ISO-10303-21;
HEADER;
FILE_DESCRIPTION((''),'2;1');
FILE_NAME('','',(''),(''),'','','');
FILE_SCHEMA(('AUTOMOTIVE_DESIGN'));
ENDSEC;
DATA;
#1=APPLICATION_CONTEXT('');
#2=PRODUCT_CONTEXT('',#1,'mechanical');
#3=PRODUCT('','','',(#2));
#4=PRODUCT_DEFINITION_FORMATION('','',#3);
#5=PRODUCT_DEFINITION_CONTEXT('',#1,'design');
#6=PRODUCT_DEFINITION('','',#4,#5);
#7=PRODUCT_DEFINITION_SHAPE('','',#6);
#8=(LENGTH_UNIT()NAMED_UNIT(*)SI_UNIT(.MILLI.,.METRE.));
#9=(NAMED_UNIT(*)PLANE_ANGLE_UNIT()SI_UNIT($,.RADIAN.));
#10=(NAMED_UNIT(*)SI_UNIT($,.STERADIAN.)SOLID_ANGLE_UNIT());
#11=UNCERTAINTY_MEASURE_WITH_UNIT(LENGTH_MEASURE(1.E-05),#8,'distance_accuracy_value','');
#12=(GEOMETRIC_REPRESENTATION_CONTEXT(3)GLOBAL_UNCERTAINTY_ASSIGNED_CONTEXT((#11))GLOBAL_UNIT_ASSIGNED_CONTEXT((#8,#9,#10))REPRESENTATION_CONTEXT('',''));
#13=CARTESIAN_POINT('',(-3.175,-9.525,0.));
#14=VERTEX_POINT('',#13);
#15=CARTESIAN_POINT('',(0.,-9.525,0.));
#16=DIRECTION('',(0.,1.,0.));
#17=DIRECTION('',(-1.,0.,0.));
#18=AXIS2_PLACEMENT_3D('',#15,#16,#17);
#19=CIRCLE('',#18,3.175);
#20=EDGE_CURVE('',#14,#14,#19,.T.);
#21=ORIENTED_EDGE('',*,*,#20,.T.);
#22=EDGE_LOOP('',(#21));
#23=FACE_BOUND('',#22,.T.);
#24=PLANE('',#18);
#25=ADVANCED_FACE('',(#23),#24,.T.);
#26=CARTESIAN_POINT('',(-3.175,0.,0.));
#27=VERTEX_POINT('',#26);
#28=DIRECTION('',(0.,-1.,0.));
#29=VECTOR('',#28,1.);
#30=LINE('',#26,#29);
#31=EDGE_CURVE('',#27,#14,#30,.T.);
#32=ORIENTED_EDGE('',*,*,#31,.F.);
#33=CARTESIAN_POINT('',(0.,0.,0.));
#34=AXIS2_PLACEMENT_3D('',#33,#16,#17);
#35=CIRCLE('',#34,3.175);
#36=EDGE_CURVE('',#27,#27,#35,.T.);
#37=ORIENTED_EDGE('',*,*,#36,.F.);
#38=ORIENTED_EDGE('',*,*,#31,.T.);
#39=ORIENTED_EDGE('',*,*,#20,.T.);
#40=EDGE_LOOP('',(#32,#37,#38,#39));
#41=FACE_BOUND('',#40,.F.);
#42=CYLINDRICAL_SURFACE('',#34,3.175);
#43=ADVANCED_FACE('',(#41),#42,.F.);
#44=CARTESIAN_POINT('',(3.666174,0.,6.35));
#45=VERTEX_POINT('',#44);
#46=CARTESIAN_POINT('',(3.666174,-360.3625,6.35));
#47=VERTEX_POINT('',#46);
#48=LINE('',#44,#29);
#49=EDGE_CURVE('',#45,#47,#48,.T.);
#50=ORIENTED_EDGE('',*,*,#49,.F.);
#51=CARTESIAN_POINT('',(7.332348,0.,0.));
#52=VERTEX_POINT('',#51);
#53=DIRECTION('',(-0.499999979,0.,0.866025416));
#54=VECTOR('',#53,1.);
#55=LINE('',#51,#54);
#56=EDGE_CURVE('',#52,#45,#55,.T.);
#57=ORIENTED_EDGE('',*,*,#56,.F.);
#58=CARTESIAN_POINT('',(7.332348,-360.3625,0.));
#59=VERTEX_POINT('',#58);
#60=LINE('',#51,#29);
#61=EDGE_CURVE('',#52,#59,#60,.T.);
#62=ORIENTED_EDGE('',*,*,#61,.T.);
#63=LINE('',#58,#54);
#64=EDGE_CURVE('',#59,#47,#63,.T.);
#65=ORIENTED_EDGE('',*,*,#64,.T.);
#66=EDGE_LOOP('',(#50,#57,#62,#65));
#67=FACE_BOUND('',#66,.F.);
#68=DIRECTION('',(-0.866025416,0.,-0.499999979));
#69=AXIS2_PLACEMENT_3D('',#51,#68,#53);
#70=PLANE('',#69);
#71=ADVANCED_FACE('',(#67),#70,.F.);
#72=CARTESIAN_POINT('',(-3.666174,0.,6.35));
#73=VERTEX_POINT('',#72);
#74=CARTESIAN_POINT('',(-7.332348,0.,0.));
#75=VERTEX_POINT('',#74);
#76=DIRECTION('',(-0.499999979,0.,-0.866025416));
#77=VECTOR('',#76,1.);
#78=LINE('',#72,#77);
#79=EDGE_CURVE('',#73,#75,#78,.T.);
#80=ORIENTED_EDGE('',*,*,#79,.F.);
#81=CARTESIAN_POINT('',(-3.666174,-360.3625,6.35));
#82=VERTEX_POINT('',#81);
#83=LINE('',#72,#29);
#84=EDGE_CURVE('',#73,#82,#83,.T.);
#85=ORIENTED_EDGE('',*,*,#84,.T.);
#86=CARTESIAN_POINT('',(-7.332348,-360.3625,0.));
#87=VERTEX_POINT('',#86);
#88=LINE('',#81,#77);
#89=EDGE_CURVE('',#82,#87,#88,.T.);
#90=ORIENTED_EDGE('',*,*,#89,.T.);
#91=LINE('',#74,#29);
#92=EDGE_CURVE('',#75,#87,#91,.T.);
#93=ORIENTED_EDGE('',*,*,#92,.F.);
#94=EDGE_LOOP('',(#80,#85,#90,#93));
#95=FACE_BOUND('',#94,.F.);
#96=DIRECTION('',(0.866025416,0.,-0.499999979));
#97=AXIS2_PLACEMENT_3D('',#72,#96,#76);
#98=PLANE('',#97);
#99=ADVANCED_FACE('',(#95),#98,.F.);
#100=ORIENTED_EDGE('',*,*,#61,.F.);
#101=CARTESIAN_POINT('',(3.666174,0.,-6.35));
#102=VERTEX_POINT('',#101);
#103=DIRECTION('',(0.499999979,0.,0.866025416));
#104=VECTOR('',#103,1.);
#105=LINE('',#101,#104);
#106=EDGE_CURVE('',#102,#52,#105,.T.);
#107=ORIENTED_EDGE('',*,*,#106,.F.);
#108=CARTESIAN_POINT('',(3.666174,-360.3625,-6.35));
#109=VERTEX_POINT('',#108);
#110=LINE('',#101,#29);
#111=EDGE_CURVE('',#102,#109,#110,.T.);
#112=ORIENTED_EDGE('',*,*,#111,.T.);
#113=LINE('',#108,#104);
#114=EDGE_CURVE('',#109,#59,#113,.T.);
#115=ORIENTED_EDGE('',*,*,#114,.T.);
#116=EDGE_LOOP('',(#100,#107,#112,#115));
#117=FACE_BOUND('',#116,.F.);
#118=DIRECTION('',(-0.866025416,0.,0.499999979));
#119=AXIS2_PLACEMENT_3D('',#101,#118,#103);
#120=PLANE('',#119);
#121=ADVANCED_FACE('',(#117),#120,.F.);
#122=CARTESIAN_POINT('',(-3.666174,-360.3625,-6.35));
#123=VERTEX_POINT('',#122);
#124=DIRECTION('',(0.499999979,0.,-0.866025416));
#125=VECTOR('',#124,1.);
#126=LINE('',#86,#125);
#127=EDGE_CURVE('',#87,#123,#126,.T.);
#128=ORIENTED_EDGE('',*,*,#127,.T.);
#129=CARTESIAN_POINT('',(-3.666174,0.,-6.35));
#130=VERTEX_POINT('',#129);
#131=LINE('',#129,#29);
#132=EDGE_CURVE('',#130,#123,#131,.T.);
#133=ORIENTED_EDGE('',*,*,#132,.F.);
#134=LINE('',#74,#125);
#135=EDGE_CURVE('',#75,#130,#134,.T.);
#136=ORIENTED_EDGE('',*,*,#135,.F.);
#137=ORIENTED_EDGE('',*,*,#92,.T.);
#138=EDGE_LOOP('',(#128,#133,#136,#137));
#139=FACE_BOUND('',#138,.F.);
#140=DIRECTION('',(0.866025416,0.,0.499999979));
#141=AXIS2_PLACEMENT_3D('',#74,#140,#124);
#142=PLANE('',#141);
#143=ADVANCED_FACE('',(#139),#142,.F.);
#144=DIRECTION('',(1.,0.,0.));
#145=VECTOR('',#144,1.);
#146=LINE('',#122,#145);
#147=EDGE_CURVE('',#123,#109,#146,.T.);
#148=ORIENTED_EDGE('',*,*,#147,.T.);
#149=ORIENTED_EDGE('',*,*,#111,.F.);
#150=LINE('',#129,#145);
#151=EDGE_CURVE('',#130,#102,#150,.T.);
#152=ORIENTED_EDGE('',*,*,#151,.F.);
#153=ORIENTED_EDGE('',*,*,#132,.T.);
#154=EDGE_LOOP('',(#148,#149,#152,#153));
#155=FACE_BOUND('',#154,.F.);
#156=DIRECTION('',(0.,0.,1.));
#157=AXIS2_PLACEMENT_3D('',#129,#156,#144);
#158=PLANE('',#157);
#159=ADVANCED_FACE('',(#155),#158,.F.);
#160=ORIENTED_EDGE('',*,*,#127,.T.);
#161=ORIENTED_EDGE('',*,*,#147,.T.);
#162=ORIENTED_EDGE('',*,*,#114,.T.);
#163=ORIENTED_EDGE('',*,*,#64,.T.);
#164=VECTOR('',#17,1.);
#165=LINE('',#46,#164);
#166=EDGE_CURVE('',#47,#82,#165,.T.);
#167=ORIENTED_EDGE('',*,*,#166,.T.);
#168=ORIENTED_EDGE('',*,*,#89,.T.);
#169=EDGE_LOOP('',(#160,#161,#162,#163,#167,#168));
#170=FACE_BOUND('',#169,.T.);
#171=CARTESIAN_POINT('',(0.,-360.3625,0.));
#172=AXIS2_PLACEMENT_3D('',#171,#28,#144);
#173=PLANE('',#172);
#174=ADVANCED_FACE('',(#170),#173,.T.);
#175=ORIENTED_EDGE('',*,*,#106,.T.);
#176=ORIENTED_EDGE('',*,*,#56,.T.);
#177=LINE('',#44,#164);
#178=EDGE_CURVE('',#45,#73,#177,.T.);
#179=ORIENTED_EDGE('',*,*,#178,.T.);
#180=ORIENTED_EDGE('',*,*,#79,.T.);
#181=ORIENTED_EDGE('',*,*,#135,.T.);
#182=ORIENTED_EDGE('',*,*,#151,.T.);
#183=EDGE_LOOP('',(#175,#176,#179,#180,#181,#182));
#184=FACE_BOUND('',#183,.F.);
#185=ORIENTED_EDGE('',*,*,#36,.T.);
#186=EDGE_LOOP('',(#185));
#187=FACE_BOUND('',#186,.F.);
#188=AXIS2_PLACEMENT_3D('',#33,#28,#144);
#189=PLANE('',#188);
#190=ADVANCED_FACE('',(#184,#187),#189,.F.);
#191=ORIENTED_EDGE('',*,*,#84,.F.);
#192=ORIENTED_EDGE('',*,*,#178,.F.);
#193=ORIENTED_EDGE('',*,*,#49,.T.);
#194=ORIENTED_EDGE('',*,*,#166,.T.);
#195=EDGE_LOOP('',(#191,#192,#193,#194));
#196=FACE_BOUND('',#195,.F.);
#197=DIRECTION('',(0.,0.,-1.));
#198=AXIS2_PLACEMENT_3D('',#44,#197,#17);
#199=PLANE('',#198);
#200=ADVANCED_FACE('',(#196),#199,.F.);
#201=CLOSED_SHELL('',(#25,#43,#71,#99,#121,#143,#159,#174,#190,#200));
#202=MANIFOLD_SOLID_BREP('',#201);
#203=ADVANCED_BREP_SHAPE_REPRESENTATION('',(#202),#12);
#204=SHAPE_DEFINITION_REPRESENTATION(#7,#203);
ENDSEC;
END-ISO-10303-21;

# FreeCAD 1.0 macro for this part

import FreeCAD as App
import Part
import Sketcher
Q = App.Units.Quantity


def add_polygon(sketch, points):
    """Adds a closed chain of lines whose ends are joined by coincident constraints."""
    first, n = sketch.GeometryCount, len(points)
    for a, b in zip(points, points[1:] + points[:1]):
        sketch.addGeometry(Part.LineSegment(App.Vector(*a, 0), App.Vector(*b, 0)), False)
    for i in range(n):
        sketch.addConstraint(Sketcher.Constraint("Coincident", first + i, 2, first + (i + 1) % n, 1))

doc = App.newDocument("Part")
params = doc.addObject("Spreadsheet::Sheet", "Params")
for row, (alias, value) in enumerate([
    ("pad1_length", "14.1875 in"),
    ("sketch2_diameter", "0.25 in"),
    ("pocket1_length", "0.375 in"),
], start=1):
    params.set(f"A{row}", alias)
    params.set(f"B{row}", "=" + value)
    params.setAlias(f"B{row}", alias)

body = doc.addObject("PartDesign::Body", "Body")

sketch1 = body.newObject("Sketcher::SketchObject", "Sketch")
sketch1.AttachmentSupport = (doc.getObject("XZ_Plane"), [""])
sketch1.MapMode = "FlatFace"
add_polygon(sketch1, [(4, 6), (-4, 6), (-7, 0), (-4, -6), (4, -6), (7, 0)])
sketch1.addConstraint([
    Sketcher.Constraint("Horizontal", 0),
    Sketcher.Constraint("Horizontal", 3),
    Sketcher.Constraint("Symmetric", 0, 2, 3, 2, -1, 1),
    Sketcher.Constraint("Symmetric", 1, 2, 4, 2, -1, 1),
    Sketcher.Constraint("PointOnObject", 1, 2, -1),
    Sketcher.Constraint("Parallel", 2, 5),
    Sketcher.Constraint("Vertical", 0, 2, 2, 2),
    Sketcher.Constraint("Angle", 1, Q("-119.999999 deg")),
    Sketcher.Constraint("DistanceY", 2, 2, 0, 2, Q("0.5 in")),
    Sketcher.Constraint("DistanceX", 0, 2, 0, 1, Q("7.332348 mm")),
])
pad1 = body.newObject("PartDesign::Pad", "Pad")
pad1.Profile = sketch1
pad1.setExpression("Length", "Params.pad1_length")

sketch2 = body.newObject("Sketcher::SketchObject", "Sketch001")
sketch2.AttachmentSupport = (doc.getObject("XZ_Plane"), [""])
sketch2.MapMode = "FlatFace"
sketch2.addGeometry(Part.Circle(App.Vector(0, 0, 0), App.Vector(0, 0, 1), 3.2), False)
sketch2.addConstraint([
    Sketcher.Constraint("Coincident", 0, 3, -1, 1),
    Sketcher.Constraint("Diameter", 0, Q("0.25 in")),
])
sketch2.setExpression("Constraints[1]", "Params.sketch2_diameter")
pocket1 = body.newObject("PartDesign::Pocket", "Pocket")
pocket1.Profile = sketch2
pocket1.setExpression("Length", "Params.pocket1_length")
pocket1.Reversed = True

doc.recompute()
